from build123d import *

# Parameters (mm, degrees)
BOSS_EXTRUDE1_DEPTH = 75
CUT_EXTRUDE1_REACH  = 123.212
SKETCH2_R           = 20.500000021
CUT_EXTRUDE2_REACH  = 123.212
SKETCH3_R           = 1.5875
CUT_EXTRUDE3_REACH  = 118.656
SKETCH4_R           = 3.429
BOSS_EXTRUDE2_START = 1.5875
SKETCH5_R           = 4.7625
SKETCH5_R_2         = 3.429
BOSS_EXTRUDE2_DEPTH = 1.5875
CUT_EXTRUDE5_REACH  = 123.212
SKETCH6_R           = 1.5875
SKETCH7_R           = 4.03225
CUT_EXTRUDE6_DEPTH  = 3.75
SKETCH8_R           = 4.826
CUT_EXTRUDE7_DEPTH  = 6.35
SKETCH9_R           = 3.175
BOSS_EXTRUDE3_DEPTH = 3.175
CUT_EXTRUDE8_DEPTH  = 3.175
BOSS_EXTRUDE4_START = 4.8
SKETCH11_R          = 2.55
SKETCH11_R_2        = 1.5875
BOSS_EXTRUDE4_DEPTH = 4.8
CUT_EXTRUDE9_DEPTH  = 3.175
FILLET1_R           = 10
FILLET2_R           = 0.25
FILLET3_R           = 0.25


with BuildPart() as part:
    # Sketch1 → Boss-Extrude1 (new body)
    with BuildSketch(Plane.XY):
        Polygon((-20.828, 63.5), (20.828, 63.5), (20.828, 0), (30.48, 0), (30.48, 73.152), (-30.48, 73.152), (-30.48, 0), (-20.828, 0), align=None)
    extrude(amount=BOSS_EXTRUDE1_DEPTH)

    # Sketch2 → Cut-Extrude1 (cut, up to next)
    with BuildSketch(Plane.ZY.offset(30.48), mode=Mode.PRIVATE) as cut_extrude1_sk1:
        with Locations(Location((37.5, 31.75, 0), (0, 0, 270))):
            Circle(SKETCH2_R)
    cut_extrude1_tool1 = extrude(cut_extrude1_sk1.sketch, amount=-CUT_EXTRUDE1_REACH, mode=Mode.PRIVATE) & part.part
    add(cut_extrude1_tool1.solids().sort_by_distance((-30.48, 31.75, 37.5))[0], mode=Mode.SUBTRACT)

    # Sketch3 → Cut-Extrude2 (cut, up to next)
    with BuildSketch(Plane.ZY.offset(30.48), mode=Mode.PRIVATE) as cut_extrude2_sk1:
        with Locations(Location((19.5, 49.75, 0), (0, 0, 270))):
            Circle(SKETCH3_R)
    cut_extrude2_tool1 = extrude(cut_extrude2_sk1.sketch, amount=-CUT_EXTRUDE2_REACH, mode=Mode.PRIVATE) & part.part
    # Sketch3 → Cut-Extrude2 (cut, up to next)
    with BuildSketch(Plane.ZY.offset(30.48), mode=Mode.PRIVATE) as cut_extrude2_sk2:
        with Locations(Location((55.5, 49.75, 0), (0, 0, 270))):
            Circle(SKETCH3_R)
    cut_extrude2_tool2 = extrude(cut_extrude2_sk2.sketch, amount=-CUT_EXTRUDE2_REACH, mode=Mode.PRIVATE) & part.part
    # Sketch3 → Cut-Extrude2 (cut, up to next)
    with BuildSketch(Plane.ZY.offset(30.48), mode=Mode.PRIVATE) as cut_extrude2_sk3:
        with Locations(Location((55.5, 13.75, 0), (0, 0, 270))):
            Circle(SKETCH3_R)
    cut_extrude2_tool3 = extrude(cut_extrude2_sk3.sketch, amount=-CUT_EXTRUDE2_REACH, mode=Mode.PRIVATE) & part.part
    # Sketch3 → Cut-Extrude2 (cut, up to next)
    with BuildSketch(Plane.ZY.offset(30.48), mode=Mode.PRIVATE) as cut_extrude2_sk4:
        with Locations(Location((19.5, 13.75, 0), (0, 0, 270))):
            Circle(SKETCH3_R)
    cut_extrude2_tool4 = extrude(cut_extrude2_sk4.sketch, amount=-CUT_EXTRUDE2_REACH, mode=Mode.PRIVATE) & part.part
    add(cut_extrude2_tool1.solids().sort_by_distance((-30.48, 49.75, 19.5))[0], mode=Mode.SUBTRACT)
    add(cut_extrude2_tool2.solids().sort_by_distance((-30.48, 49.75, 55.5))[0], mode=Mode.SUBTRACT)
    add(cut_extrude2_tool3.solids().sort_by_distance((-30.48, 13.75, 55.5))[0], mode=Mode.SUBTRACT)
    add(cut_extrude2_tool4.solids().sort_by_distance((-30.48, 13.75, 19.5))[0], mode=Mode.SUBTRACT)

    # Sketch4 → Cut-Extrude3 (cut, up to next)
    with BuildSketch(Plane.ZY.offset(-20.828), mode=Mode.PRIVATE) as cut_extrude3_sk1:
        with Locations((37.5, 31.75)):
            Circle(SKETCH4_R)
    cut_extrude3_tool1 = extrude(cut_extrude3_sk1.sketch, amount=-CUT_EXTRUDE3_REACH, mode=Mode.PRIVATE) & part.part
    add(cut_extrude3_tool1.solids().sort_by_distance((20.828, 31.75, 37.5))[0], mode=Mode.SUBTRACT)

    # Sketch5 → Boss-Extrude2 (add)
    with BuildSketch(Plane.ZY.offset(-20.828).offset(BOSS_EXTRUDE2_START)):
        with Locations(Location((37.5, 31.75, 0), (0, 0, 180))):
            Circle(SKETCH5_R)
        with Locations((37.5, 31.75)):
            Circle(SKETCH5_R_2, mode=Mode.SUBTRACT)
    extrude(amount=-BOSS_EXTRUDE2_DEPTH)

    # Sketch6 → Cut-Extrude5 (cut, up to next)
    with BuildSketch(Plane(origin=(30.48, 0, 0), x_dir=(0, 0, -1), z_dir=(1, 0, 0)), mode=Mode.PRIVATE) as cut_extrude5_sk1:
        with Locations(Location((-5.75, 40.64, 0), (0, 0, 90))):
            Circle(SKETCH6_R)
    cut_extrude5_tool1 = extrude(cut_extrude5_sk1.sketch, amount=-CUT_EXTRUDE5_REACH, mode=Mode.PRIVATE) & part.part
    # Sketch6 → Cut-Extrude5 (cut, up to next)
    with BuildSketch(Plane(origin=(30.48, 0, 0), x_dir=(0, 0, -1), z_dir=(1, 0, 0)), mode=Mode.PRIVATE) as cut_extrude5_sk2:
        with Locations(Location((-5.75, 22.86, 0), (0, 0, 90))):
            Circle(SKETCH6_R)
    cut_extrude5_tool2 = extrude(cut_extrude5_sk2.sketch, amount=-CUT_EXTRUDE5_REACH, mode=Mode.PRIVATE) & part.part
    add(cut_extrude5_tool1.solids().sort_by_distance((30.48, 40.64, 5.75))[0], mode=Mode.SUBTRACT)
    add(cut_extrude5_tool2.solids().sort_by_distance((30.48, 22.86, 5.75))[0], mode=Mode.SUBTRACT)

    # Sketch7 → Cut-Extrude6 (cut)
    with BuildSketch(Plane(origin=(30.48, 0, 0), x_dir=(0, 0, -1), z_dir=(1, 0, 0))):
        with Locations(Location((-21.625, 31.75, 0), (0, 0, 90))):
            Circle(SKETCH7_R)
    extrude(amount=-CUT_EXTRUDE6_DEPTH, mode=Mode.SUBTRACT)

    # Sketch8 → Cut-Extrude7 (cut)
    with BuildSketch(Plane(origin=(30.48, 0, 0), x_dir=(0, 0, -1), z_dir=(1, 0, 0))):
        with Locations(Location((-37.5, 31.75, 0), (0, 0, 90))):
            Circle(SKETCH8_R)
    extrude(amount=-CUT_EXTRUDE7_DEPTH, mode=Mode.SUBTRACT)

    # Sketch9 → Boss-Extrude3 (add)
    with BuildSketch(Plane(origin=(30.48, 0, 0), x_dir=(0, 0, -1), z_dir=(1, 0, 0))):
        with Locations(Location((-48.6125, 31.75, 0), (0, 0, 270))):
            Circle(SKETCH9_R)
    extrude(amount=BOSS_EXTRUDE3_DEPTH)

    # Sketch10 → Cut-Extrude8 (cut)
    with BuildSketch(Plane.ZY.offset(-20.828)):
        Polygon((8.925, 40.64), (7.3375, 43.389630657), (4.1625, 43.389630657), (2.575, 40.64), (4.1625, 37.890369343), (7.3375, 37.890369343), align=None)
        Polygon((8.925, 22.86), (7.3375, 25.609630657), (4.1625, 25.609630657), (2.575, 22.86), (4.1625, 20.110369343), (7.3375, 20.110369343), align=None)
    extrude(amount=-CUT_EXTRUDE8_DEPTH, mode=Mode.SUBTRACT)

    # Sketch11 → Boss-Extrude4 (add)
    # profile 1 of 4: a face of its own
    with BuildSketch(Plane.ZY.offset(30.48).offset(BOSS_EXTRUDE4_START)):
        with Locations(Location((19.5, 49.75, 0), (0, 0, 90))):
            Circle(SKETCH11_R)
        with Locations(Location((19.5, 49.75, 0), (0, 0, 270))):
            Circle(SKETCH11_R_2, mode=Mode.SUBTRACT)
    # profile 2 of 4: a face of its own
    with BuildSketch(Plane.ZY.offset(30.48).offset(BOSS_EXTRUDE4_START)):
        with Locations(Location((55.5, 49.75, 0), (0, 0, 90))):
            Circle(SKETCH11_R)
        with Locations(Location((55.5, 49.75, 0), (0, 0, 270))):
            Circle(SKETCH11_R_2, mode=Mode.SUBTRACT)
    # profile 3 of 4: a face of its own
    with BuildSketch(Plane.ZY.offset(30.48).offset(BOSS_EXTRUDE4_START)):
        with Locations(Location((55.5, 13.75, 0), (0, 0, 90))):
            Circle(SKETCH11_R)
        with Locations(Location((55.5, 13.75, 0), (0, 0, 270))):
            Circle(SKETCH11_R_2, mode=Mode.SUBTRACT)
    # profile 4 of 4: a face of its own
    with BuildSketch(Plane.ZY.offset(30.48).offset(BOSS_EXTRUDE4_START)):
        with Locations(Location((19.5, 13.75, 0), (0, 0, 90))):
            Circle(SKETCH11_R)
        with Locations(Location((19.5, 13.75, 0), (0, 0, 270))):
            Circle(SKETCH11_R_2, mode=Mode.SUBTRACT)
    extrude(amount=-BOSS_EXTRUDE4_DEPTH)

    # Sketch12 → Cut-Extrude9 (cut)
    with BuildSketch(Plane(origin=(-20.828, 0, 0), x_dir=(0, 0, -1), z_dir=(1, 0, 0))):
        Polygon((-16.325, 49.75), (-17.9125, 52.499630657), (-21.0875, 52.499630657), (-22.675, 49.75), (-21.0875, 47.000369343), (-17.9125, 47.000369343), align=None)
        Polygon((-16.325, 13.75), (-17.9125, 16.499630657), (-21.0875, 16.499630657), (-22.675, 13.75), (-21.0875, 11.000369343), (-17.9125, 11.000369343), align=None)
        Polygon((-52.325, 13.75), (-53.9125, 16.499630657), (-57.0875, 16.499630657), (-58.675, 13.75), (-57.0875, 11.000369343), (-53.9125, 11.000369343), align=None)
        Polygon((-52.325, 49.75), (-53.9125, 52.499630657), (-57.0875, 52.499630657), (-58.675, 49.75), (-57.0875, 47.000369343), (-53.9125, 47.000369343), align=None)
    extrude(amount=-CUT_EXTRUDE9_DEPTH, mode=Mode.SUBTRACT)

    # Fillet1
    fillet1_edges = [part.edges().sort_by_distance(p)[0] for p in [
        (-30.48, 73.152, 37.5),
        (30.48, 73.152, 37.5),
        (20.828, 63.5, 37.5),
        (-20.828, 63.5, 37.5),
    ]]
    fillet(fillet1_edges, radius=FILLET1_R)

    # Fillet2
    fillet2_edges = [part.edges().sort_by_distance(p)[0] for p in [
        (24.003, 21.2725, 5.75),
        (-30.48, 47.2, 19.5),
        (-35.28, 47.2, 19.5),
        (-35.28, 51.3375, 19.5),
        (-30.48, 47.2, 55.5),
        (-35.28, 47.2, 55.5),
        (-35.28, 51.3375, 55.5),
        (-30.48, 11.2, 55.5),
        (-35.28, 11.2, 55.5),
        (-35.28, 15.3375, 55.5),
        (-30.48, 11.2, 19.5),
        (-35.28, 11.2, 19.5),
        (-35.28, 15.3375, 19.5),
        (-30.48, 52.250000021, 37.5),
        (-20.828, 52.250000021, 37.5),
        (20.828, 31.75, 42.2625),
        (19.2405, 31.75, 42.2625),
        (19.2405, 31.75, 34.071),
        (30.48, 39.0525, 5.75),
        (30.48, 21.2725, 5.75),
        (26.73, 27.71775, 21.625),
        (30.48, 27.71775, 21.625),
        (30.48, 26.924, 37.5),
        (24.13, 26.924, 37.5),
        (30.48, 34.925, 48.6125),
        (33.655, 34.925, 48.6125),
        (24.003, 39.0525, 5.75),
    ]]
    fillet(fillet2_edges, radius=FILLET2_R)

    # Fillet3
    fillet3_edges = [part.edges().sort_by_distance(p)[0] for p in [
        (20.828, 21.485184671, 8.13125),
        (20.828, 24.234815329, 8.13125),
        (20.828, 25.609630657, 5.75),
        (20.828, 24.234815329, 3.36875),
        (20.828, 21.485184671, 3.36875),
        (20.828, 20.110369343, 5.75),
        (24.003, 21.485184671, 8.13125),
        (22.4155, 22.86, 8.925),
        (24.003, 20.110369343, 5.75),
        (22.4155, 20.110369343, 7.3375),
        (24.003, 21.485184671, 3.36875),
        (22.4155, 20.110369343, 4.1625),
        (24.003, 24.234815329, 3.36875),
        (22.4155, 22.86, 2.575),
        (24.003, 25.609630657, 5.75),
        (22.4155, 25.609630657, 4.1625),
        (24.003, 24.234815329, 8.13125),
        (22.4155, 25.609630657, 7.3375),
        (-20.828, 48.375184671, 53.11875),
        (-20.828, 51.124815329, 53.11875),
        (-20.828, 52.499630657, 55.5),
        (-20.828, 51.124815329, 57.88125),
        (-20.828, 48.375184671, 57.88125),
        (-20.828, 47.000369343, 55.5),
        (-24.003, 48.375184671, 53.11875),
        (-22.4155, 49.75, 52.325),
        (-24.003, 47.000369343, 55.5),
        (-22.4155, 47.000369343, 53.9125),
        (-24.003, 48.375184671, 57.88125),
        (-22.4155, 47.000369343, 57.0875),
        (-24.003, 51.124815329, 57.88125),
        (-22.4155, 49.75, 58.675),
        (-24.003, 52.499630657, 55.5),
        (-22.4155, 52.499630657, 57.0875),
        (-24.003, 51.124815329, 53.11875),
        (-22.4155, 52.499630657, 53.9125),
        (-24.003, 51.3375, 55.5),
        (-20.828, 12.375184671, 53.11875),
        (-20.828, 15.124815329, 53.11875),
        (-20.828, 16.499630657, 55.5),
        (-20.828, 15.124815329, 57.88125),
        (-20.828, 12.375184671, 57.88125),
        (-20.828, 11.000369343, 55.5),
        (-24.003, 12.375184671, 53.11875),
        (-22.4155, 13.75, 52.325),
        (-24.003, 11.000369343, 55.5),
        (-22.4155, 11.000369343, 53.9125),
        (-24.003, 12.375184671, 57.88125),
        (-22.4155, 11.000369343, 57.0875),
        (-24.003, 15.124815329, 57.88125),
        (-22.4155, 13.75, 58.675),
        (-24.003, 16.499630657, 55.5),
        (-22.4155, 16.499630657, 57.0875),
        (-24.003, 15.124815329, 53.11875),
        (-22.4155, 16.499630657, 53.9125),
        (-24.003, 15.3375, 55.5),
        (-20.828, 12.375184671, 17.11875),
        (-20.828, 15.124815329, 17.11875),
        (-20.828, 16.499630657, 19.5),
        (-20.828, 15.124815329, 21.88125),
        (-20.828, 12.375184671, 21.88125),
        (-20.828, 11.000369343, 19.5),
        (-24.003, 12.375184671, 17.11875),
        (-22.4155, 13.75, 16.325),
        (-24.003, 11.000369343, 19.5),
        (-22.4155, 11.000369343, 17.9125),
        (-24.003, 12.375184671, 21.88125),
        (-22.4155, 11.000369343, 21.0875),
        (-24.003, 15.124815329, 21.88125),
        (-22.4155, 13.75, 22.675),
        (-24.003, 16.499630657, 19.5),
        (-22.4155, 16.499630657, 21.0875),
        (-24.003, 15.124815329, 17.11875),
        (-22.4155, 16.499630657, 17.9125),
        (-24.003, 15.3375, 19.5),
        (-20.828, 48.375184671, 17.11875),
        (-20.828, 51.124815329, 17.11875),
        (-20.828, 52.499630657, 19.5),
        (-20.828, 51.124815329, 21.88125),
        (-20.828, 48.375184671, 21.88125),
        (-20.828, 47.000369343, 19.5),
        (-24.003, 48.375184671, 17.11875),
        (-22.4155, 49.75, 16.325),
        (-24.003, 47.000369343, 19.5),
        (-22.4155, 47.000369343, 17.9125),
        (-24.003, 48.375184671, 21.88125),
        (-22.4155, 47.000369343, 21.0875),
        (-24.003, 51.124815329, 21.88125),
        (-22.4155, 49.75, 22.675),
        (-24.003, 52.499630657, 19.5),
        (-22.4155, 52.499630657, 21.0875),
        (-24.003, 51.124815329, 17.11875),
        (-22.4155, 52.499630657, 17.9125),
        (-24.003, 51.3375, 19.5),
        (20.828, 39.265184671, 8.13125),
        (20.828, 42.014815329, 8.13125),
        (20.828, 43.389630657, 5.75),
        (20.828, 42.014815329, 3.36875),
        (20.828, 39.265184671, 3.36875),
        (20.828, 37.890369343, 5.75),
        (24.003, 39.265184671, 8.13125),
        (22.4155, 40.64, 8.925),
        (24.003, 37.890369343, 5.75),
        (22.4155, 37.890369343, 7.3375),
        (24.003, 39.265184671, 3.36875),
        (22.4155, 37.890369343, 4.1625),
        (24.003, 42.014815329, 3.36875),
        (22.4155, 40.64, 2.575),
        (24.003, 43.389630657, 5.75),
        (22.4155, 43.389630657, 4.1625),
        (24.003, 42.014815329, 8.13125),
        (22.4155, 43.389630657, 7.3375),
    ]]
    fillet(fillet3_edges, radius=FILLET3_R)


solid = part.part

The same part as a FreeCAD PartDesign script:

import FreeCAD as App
import Part
import Sketcher

V = App.Vector
Q = App.Units.Quantity


def edges_at(feature, points):
    """Names of the edges that pass closest to the given points."""
    edges = feature.Shape.Edges
    near = lambda p: min(range(len(edges)), key=lambda i: edges[i].distToShape(Part.Vertex(*p))[0])
    return sorted({f"Edge{near(p) + 1}" for p in points})

doc = App.newDocument("Part")
params = doc.addObject("Spreadsheet::Sheet", "Params")
for row, (alias, value) in enumerate([
    ("sketch1_width", "2.4 in"),
    ("sketch1_height", "2.5 in"),
    ("sketch1_width2", "1.64 in"),
    ("sketch1_height2", "2.88 in"),
    ("pad1_length", "75 mm"),
    ("sketch3_diameter", "0.125 in"),
    ("sketch4_diameter", "0.125 in"),
    ("sketch5_diameter", "0.125 in"),
    ("sketch6_diameter", "0.125 in"),
    ("sketch7_diameter", "0.27 in"),
    ("sketch8_diameter", "0.27 in"),
    ("sketch8_diameter2", "0.375 in"),
    ("pad2_length", "0.0625 in"),
    ("sketch9_diameter", "0.125 in"),
    ("sketch10_diameter", "0.125 in"),
    ("pocket9_length", "3.75 mm"),
    ("sketch12_diameter", "0.38 in"),
    ("pocket10_length", "0.25 in"),
    ("sketch13_diameter", "0.25 in"),
    ("pad3_length", "0.125 in"),
    ("sketch14_height", "0.125 in"),
    ("pocket11_length", "0.125 in"),
    ("sketch15_diameter", "0.125 in"),
    ("pad4_length", "4.8 mm"),
    ("sketch16_height", "0.125 in"),
    ("pocket12_length", "0.125 in"),
    ("fillet_radius", "10 mm"),
    ("fillet2_radius", "0.25 mm"),
    ("fillet3_radius", "0.25 mm"),
], start=1):
    params.set(f"A{row}", alias)
    params.set(f"B{row}", "=" + value)
    params.setAlias(f"B{row}", alias)

body = doc.addObject("PartDesign::Body", "Body")

# Sketch on XY plane
sketch1 = body.newObject("Sketcher::SketchObject", "Sketch")
sketch1.AttachmentSupport = (doc.getObject("XY_Plane"), [""])
sketch1.MapMode = "FlatFace"
sketch1.addGeometry([
    Part.LineSegment(V(-21, 64, 0), V(21, 64, 0)),  # 0
    Part.LineSegment(V(21, 64, 0), V(21, 0, 0)),  # 1
    Part.LineSegment(V(21, 0, 0), V(30, 0, 0)),  # 2
    Part.LineSegment(V(30, 0, 0), V(30, 73, 0)),  # 3
    Part.LineSegment(V(30, 73, 0), V(-30, 73, 0)),  # 4
    Part.LineSegment(V(-30, 73, 0), V(-30, 0, 0)),  # 5
    Part.LineSegment(V(-30, 0, 0), V(-21, 0, 0)),  # 6
    Part.LineSegment(V(-21, 0, 0), V(-21, 64, 0)),  # 7
], False)
sketch1.addConstraint([
    Sketcher.Constraint("Coincident", 0, 2, 1, 1),
    Sketcher.Constraint("Coincident", 1, 2, 2, 1),
    Sketcher.Constraint("Coincident", 2, 2, 3, 1),
    Sketcher.Constraint("Coincident", 3, 2, 4, 1),
    Sketcher.Constraint("Coincident", 4, 2, 5, 1),
    Sketcher.Constraint("Coincident", 5, 2, 6, 1),
    Sketcher.Constraint("Coincident", 6, 2, 7, 1),
    Sketcher.Constraint("Coincident", 7, 2, 0, 1),
    Sketcher.Constraint("Horizontal", 0),
    Sketcher.Constraint("Vertical", 1),
    Sketcher.Constraint("Horizontal", 2),
    Sketcher.Constraint("Vertical", 3),
    Sketcher.Constraint("Horizontal", 4),
    Sketcher.Constraint("Vertical", 5),
    Sketcher.Constraint("Horizontal", 6),
    Sketcher.Constraint("Vertical", 7),
    Sketcher.Constraint("Symmetric", 2, 2, 5, 2, -1, 1),
    Sketcher.Constraint("Symmetric", 1, 2, 6, 2, -2),
    Sketcher.Constraint("DistanceX", 4, 2, 4, 1, Q("2.4 in")),
    Sketcher.Constraint("DistanceY", 1, 2, 1, 1, Q("2.5 in")),
    Sketcher.Constraint("DistanceX", 0, 1, 0, 2, Q("1.64 in")),
    Sketcher.Constraint("DistanceY", 3, 1, 3, 2, Q("2.88 in")),
])
sketch1.setExpression("Constraints[18]", "Params.sketch1_width")
sketch1.setExpression("Constraints[19]", "Params.sketch1_height")
sketch1.setExpression("Constraints[20]", "Params.sketch1_width2")
sketch1.setExpression("Constraints[21]", "Params.sketch1_height2")
pad1 = body.newObject("PartDesign::Pad", "Pad")
pad1.Profile = sketch1
pad1.setExpression("Length", "Params.pad1_length")

# Sketch on YZ plane
sketch2 = body.newObject("Sketcher::SketchObject", "Sketch001")
sketch2.AttachmentSupport = (doc.getObject("YZ_Plane"), [""])
sketch2.MapMode = "FlatFace"
sketch2.AttachmentOffset = App.Placement(V(0, 0, -1.2 * 25.4), App.Rotation())
sketch2.addGeometry(Part.Circle(V(32, 38, 0), V(0, 0, 1), 21), False)
sketch2.addConstraint([
    Sketcher.Constraint("Diameter", 0, 41.0),
    Sketcher.Constraint("DistanceX", -1, 1, 0, 3, Q("1.25 in")),
    Sketcher.Constraint("DistanceY", -1, 1, 0, 3, 37.5),
])
pocket1 = body.newObject("PartDesign::Pocket", "Pocket")
pocket1.Profile = sketch2
pocket1.Type = "UpToFirst"
pocket1.Reversed = True

# Sketch on YZ plane
sketch3 = body.newObject("Sketcher::SketchObject", "Sketch002")
sketch3.AttachmentSupport = (doc.getObject("YZ_Plane"), [""])
sketch3.MapMode = "FlatFace"
sketch3.AttachmentOffset = App.Placement(V(0, 0, -1.2 * 25.4), App.Rotation())
sketch3.addGeometry(Part.Circle(V(49.8, 19.5, 0), V(0, 0, 1), 1.6), False)
sketch3.addConstraint([
    Sketcher.Constraint("Diameter", 0, Q("0.125 in")),
    Sketcher.Constraint("DistanceX", -1, 1, 0, 3, 49.75),
    Sketcher.Constraint("DistanceY", -1, 1, 0, 3, 19.5),
])
sketch3.setExpression("Constraints[0]", "Params.sketch3_diameter")
pocket2 = body.newObject("PartDesign::Pocket", "Pocket001")
pocket2.Profile = sketch3
pocket2.Type = "UpToFirst"
pocket2.Reversed = True

# Sketch on YZ plane
sketch4 = body.newObject("Sketcher::SketchObject", "Sketch003")
sketch4.AttachmentSupport = (doc.getObject("YZ_Plane"), [""])
sketch4.MapMode = "FlatFace"
sketch4.AttachmentOffset = App.Placement(V(0, 0, -1.2 * 25.4), App.Rotation())
sketch4.addGeometry(Part.Circle(V(49.8, 55.5, 0), V(0, 0, 1), 1.6), False)
sketch4.addConstraint([
    Sketcher.Constraint("Diameter", 0, Q("0.125 in")),
    Sketcher.Constraint("DistanceX", -1, 1, 0, 3, 49.75),
    Sketcher.Constraint("DistanceY", -1, 1, 0, 3, 55.5),
])
sketch4.setExpression("Constraints[0]", "Params.sketch4_diameter")
pocket3 = body.newObject("PartDesign::Pocket", "Pocket002")
pocket3.Profile = sketch4
pocket3.Type = "UpToFirst"
pocket3.Reversed = True

# Sketch on YZ plane
sketch5 = body.newObject("Sketcher::SketchObject", "Sketch004")
sketch5.AttachmentSupport = (doc.getObject("YZ_Plane"), [""])
sketch5.MapMode = "FlatFace"
sketch5.AttachmentOffset = App.Placement(V(0, 0, -1.2 * 25.4), App.Rotation())
sketch5.addGeometry(Part.Circle(V(13.8, 55.5, 0), V(0, 0, 1), 1.6), False)
sketch5.addConstraint([
    Sketcher.Constraint("Diameter", 0, Q("0.125 in")),
    Sketcher.Constraint("DistanceX", -1, 1, 0, 3, 13.75),
    Sketcher.Constraint("DistanceY", -1, 1, 0, 3, 55.5),
])
sketch5.setExpression("Constraints[0]", "Params.sketch5_diameter")
pocket4 = body.newObject("PartDesign::Pocket", "Pocket003")
pocket4.Profile = sketch5
pocket4.Type = "UpToFirst"
pocket4.Reversed = True

# Sketch on YZ plane
sketch6 = body.newObject("Sketcher::SketchObject", "Sketch005")
sketch6.AttachmentSupport = (doc.getObject("YZ_Plane"), [""])
sketch6.MapMode = "FlatFace"
sketch6.AttachmentOffset = App.Placement(V(0, 0, -1.2 * 25.4), App.Rotation())
sketch6.addGeometry(Part.Circle(V(13.8, 19.5, 0), V(0, 0, 1), 1.6), False)
sketch6.addConstraint([
    Sketcher.Constraint("Diameter", 0, Q("0.125 in")),
    Sketcher.Constraint("DistanceX", -1, 1, 0, 3, 13.75),
    Sketcher.Constraint("DistanceY", -1, 1, 0, 3, 19.5),
])
sketch6.setExpression("Constraints[0]", "Params.sketch6_diameter")
pocket5 = body.newObject("PartDesign::Pocket", "Pocket004")
pocket5.Profile = sketch6
pocket5.Type = "UpToFirst"
pocket5.Reversed = True

# Sketch on YZ plane
sketch7 = body.newObject("Sketcher::SketchObject", "Sketch006")
sketch7.AttachmentSupport = (doc.getObject("YZ_Plane"), [""])
sketch7.MapMode = "FlatFace"
sketch7.AttachmentOffset = App.Placement(V(0, 0, 0.82 * 25.4), App.Rotation())
sketch7.addGeometry(Part.Circle(V(31.8, 37.5, 0), V(0, 0, 1), 3.4), False)
sketch7.addConstraint([
    Sketcher.Constraint("Diameter", 0, Q("0.27 in")),
    Sketcher.Constraint("DistanceX", -1, 1, 0, 3, Q("1.25 in")),
    Sketcher.Constraint("DistanceY", -1, 1, 0, 3, 37.5),
])
sketch7.setExpression("Constraints[0]", "Params.sketch7_diameter")
pocket6 = body.newObject("PartDesign::Pocket", "Pocket005")
pocket6.Profile = sketch7
pocket6.Type = "UpToFirst"
pocket6.Reversed = True

# Sketch on YZ plane
sketch8 = body.newObject("Sketcher::SketchObject", "Sketch007")
sketch8.AttachmentSupport = (doc.getObject("YZ_Plane"), [""])
sketch8.MapMode = "FlatFace"
sketch8.AttachmentOffset = App.Placement(V(0, 0, 0.7575 * 25.4), App.Rotation())
sketch8.addGeometry([
    Part.Circle(V(31.8, 37.5, 0), V(0, 0, 1), 4.8),
    Part.Circle(V(31.8, 37.5, 0), V(0, 0, 1), 3.4),
], False)
sketch8.addConstraint([
    Sketcher.Constraint("Coincident", 1, 3, 0, 3),
    Sketcher.Constraint("Diameter", 1, Q("0.27 in")),
    Sketcher.Constraint("Diameter", 0, Q("0.375 in")),
    Sketcher.Constraint("DistanceX", -1, 1, 0, 3, Q("1.25 in")),
    Sketcher.Constraint("DistanceY", -1, 1, 0, 3, 37.5),
])
sketch8.setExpression("Constraints[1]", "Params.sketch8_diameter")
sketch8.setExpression("Constraints[2]", "Params.sketch8_diameter2")
pad2 = body.newObject("PartDesign::Pad", "Pad001")
pad2.Profile = sketch8
pad2.setExpression("Length", "Params.pad2_length")

# Sketch on YZ plane
sketch9 = body.newObject("Sketcher::SketchObject", "Sketch008")
sketch9.AttachmentSupport = (doc.getObject("YZ_Plane"), [""])
sketch9.MapMode = "FlatFace"
sketch9.AttachmentOffset = App.Placement(V(0, 0, 1.2 * 25.4), App.Rotation())
sketch9.addGeometry(Part.Circle(V(40.6, 5.8, 0), V(0, 0, 1), 1.6), False)
sketch9.addConstraint([
    Sketcher.Constraint("Diameter", 0, Q("0.125 in")),
    Sketcher.Constraint("DistanceX", -1, 1, 0, 3, Q("1.6 in")),
    Sketcher.Constraint("DistanceY", -1, 1, 0, 3, 5.75),
])
sketch9.setExpression("Constraints[0]", "Params.sketch9_diameter")
pocket7 = body.newObject("PartDesign::Pocket", "Pocket006")
pocket7.Profile = sketch9
pocket7.Type = "UpToFirst"

# Sketch on YZ plane
sketch10 = body.newObject("Sketcher::SketchObject", "Sketch009")
sketch10.AttachmentSupport = (doc.getObject("YZ_Plane"), [""])
sketch10.MapMode = "FlatFace"
sketch10.AttachmentOffset = App.Placement(V(0, 0, 1.2 * 25.4), App.Rotation())
sketch10.addGeometry(Part.Circle(V(22.9, 5.8, 0), V(0, 0, 1), 1.6), False)
sketch10.addConstraint([
    Sketcher.Constraint("Diameter", 0, Q("0.125 in")),
    Sketcher.Constraint("DistanceX", -1, 1, 0, 3, Q("0.9 in")),
    Sketcher.Constraint("DistanceY", -1, 1, 0, 3, 5.75),
])
sketch10.setExpression("Constraints[0]", "Params.sketch10_diameter")
pocket8 = body.newObject("PartDesign::Pocket", "Pocket007")
pocket8.Profile = sketch10
pocket8.Type = "UpToFirst"

# Sketch on YZ plane
sketch11 = body.newObject("Sketcher::SketchObject", "Sketch010")
sketch11.AttachmentSupport = (doc.getObject("YZ_Plane"), [""])
sketch11.MapMode = "FlatFace"
sketch11.AttachmentOffset = App.Placement(V(0, 0, 1.2 * 25.4), App.Rotation())
sketch11.addGeometry(Part.Circle(V(31.8, 21.6, 0), V(0, 0, 1), 4), False)
sketch11.addConstraint([
    Sketcher.Constraint("Diameter", 0, Q("0.3175 in")),
    Sketcher.Constraint("DistanceX", -1, 1, 0, 3, Q("1.25 in")),
    Sketcher.Constraint("DistanceY", -1, 1, 0, 3, 21.625),
])
pocket9 = body.newObject("PartDesign::Pocket", "Pocket008")
pocket9.Profile = sketch11
pocket9.setExpression("Length", "Params.pocket9_length")

# Sketch on YZ plane
sketch12 = body.newObject("Sketcher::SketchObject", "Sketch011")
sketch12.AttachmentSupport = (doc.getObject("YZ_Plane"), [""])
sketch12.MapMode = "FlatFace"
sketch12.AttachmentOffset = App.Placement(V(0, 0, 1.2 * 25.4), App.Rotation())
sketch12.addGeometry(Part.Circle(V(31.8, 37.5, 0), V(0, 0, 1), 4.8), False)
sketch12.addConstraint([
    Sketcher.Constraint("Diameter", 0, Q("0.38 in")),
    Sketcher.Constraint("DistanceX", -1, 1, 0, 3, Q("1.25 in")),
    Sketcher.Constraint("DistanceY", -1, 1, 0, 3, 37.5),
])
sketch12.setExpression("Constraints[0]", "Params.sketch12_diameter")
pocket10 = body.newObject("PartDesign::Pocket", "Pocket009")
pocket10.Profile = sketch12
pocket10.setExpression("Length", "Params.pocket10_length")

# Sketch on YZ plane
sketch13 = body.newObject("Sketcher::SketchObject", "Sketch012")
sketch13.AttachmentSupport = (doc.getObject("YZ_Plane"), [""])
sketch13.MapMode = "FlatFace"
sketch13.AttachmentOffset = App.Placement(V(0, 0, 1.2 * 25.4), App.Rotation())
sketch13.addGeometry(Part.Circle(V(31.8, 48.6, 0), V(0, 0, 1), 3.2), False)
sketch13.addConstraint([
    Sketcher.Constraint("Diameter", 0, Q("0.25 in")),
    Sketcher.Constraint("DistanceX", -1, 1, 0, 3, Q("1.25 in")),
    Sketcher.Constraint("DistanceY", -1, 1, 0, 3, 48.6125),
])
sketch13.setExpression("Constraints[0]", "Params.sketch13_diameter")
pad3 = body.newObject("PartDesign::Pad", "Pad002")
pad3.Profile = sketch13
pad3.setExpression("Length", "Params.pad3_length")

# Sketch on YZ plane
sketch14 = body.newObject("Sketcher::SketchObject", "Sketch013")
sketch14.AttachmentSupport = (doc.getObject("YZ_Plane"), [""])
sketch14.MapMode = "FlatFace"
sketch14.AttachmentOffset = App.Placement(V(0, 0, 0.82 * 25.4), App.Rotation())
sketch14.addGeometry([
    Part.LineSegment(V(40.6, 8.9, 0), V(43.4, 7.3, 0)),  # 0
    Part.LineSegment(V(43.4, 7.3, 0), V(43.4, 4.2, 0)),  # 1
    Part.LineSegment(V(43.4, 4.2, 0), V(40.6, 2.6, 0)),  # 2
    Part.LineSegment(V(40.6, 2.6, 0), V(37.9, 4.2, 0)),  # 3
    Part.LineSegment(V(37.9, 4.2, 0), V(37.9, 7.3, 0)),  # 4
    Part.LineSegment(V(37.9, 7.3, 0), V(40.6, 8.9, 0)),  # 5
    Part.LineSegment(V(22.9, 8.9, 0), V(25.6, 7.3, 0)),  # 6
    Part.LineSegment(V(25.6, 7.3, 0), V(25.6, 4.2, 0)),  # 7
    Part.LineSegment(V(25.6, 4.2, 0), V(22.9, 2.6, 0)),  # 8
    Part.LineSegment(V(22.9, 2.6, 0), V(20.1, 4.2, 0)),  # 9
    Part.LineSegment(V(20.1, 4.2, 0), V(20.1, 7.3, 0)),  # 10
    Part.LineSegment(V(20.1, 7.3, 0), V(22.9, 8.9, 0)),  # 11
], False)
sketch14.addConstraint([
    Sketcher.Constraint("Coincident", 0, 2, 1, 1),
    Sketcher.Constraint("Coincident", 1, 2, 2, 1),
    Sketcher.Constraint("Coincident", 2, 2, 3, 1),
    Sketcher.Constraint("Coincident", 3, 2, 4, 1),
    Sketcher.Constraint("Coincident", 4, 2, 5, 1),
    Sketcher.Constraint("Coincident", 5, 2, 0, 1),
    Sketcher.Constraint("Coincident", 6, 2, 7, 1),
    Sketcher.Constraint("Coincident", 7, 2, 8, 1),
    Sketcher.Constraint("Coincident", 8, 2, 9, 1),
    Sketcher.Constraint("Coincident", 9, 2, 10, 1),
    Sketcher.Constraint("Coincident", 10, 2, 11, 1),
    Sketcher.Constraint("Coincident", 11, 2, 6, 1),
    Sketcher.Constraint("Vertical", 1),
    Sketcher.Constraint("Vertical", 4),
    Sketcher.Constraint("Vertical", 7),
    Sketcher.Constraint("Vertical", 10),
    Sketcher.Constraint("Parallel", 0, 3),
    Sketcher.Constraint("Parallel", 2, 5),
    Sketcher.Constraint("Parallel", 3, 6),
    Sketcher.Constraint("Parallel", 5, 8),
    Sketcher.Constraint("Parallel", 6, 9),
    Sketcher.Constraint("Parallel", 8, 11),
    Sketcher.Constraint("Horizontal", 1, 2, 3, 2),
    Sketcher.Constraint("Horizontal", 0, 2, 4, 2),
    Sketcher.Constraint("Horizontal", 4, 2, 6, 2),
    Sketcher.Constraint("Horizontal", 3, 2, 7, 2),
    Sketcher.Constraint("Horizontal", 2, 2, 8, 2),
    Sketcher.Constraint("Horizontal", 7, 2, 9, 2),
    Sketcher.Constraint("Horizontal", 6, 2, 10, 2),
    Sketcher.Constraint("Vertical", 2, 2, 5, 2),
    Sketcher.Constraint("Angle", 0, Q("-30 deg")),
    Sketcher.Constraint("DistanceX", -1, 1, 2, 2, Q("1.6 in")),
    Sketcher.Constraint("DistanceX", -1, 1, 8, 2, Q("0.9 in")),
    Sketcher.Constraint("DistanceY", 1, 2, 1, 1, Q("0.125 in")),
    Sketcher.Constraint("DistanceY", 2, 2, 5, 2, Q("0.25 in")),
    Sketcher.Constraint("DistanceY", -1, 1, 0, 2, 7.3375),
])
sketch14.setExpression("Constraints[33]", "Params.sketch14_height")
pocket11 = body.newObject("PartDesign::Pocket", "Pocket010")
pocket11.Profile = sketch14
pocket11.setExpression("Length", "Params.pocket11_length")
pocket11.Reversed = True

# Sketch on YZ plane
sketch15 = body.newObject("Sketcher::SketchObject", "Sketch014")
sketch15.AttachmentSupport = (doc.getObject("YZ_Plane"), [""])
sketch15.MapMode = "FlatFace"
sketch15.AttachmentOffset = App.Placement(V(0, 0, -35.28), App.Rotation())
sketch15.addGeometry([
    Part.Circle(V(49.8, 19.5, 0), V(0, 0, 1), 2.5),  # 0
    Part.Circle(V(49.8, 19.5, 0), V(0, 0, 1), 1.6),  # 1
    Part.Circle(V(49.8, 55.5, 0), V(0, 0, 1), 2.5),  # 2
    Part.Circle(V(49.8, 55.5, 0), V(0, 0, 1), 1.6),  # 3
    Part.Circle(V(13.8, 55.5, 0), V(0, 0, 1), 2.5),  # 4
    Part.Circle(V(13.8, 55.5, 0), V(0, 0, 1), 1.6),  # 5
    Part.Circle(V(13.8, 19.5, 0), V(0, 0, 1), 2.5),  # 6
    Part.Circle(V(13.8, 19.5, 0), V(0, 0, 1), 1.6),  # 7
], False)
sketch15.addConstraint([
    Sketcher.Constraint("Coincident", 1, 3, 0, 3),
    Sketcher.Constraint("Coincident", 3, 3, 2, 3),
    Sketcher.Constraint("Coincident", 5, 3, 4, 3),
    Sketcher.Constraint("Coincident", 7, 3, 6, 3),
    Sketcher.Constraint("Equal", 0, 2),
    Sketcher.Constraint("Equal", 1, 3),
    Sketcher.Constraint("Equal", 2, 4),
    Sketcher.Constraint("Equal", 3, 5),
    Sketcher.Constraint("Equal", 4, 6),
    Sketcher.Constraint("Equal", 5, 7),
    Sketcher.Constraint("Horizontal", 3, 3, 4, 3),
    Sketcher.Constraint("Horizontal", 1, 3, 6, 3),
    Sketcher.Constraint("Vertical", 1, 3, 2, 3),
    Sketcher.Constraint("Vertical", 5, 3, 6, 3),
    Sketcher.Constraint("Diameter", 1, Q("0.125 in")),
    Sketcher.Constraint("Diameter", 0, 5.1),
    Sketcher.Constraint("DistanceX", -1, 1, 0, 3, 49.75),
    Sketcher.Constraint("DistanceY", -1, 1, 0, 3, 19.5),
    Sketcher.Constraint("DistanceY", -1, 1, 2, 3, 55.5),
    Sketcher.Constraint("DistanceX", -1, 1, 4, 3, 13.75),
])
sketch15.setExpression("Constraints[14]", "Params.sketch15_diameter")
pad4 = body.newObject("PartDesign::Pad", "Pad003")
pad4.Profile = sketch15
pad4.setExpression("Length", "Params.pad4_length")

# Sketch on YZ plane
sketch16 = body.newObject("Sketcher::SketchObject", "Sketch015")
sketch16.AttachmentSupport = (doc.getObject("YZ_Plane"), [""])
sketch16.MapMode = "FlatFace"
sketch16.AttachmentOffset = App.Placement(V(0, 0, -0.82 * 25.4), App.Rotation())
sketch16.addGeometry([
    Part.LineSegment(V(49.8, 16.3, 0), V(52.5, 17.9, 0)),  # 0
    Part.LineSegment(V(52.5, 17.9, 0), V(52.5, 21.1, 0)),  # 1
    Part.LineSegment(V(52.5, 21.1, 0), V(49.8, 22.7, 0)),  # 2
    Part.LineSegment(V(49.8, 22.7, 0), V(47, 21.1, 0)),  # 3
    Part.LineSegment(V(47, 21.1, 0), V(47, 17.9, 0)),  # 4
    Part.LineSegment(V(47, 17.9, 0), V(49.8, 16.3, 0)),  # 5
    Part.LineSegment(V(13.8, 16.3, 0), V(16.5, 17.9, 0)),  # 6
    Part.LineSegment(V(16.5, 17.9, 0), V(16.5, 21.1, 0)),  # 7
    Part.LineSegment(V(16.5, 21.1, 0), V(13.8, 22.7, 0)),  # 8
    Part.LineSegment(V(13.8, 22.7, 0), V(11, 21.1, 0)),  # 9
    Part.LineSegment(V(11, 21.1, 0), V(11, 17.9, 0)),  # 10
    Part.LineSegment(V(11, 17.9, 0), V(13.8, 16.3, 0)),  # 11
    Part.LineSegment(V(13.8, 52.3, 0), V(16.5, 53.9, 0)),  # 12
    Part.LineSegment(V(16.5, 53.9, 0), V(16.5, 57.1, 0)),  # 13
    Part.LineSegment(V(16.5, 57.1, 0), V(13.8, 58.7, 0)),  # 14
    Part.LineSegment(V(13.8, 58.7, 0), V(11, 57.1, 0)),  # 15
    Part.LineSegment(V(11, 57.1, 0), V(11, 53.9, 0)),  # 16
    Part.LineSegment(V(11, 53.9, 0), V(13.8, 52.3, 0)),  # 17
    Part.LineSegment(V(49.8, 52.3, 0), V(52.5, 53.9, 0)),  # 18
    Part.LineSegment(V(52.5, 53.9, 0), V(52.5, 57.1, 0)),  # 19
    Part.LineSegment(V(52.5, 57.1, 0), V(49.8, 58.7, 0)),  # 20
    Part.LineSegment(V(49.8, 58.7, 0), V(47, 57.1, 0)),  # 21
    Part.LineSegment(V(47, 57.1, 0), V(47, 53.9, 0)),  # 22
    Part.LineSegment(V(47, 53.9, 0), V(49.8, 52.3, 0)),  # 23
], False)
sketch16.addConstraint([
    Sketcher.Constraint("Coincident", 0, 2, 1, 1),
    Sketcher.Constraint("Coincident", 1, 2, 2, 1),
    Sketcher.Constraint("Coincident", 2, 2, 3, 1),
    Sketcher.Constraint("Coincident", 3, 2, 4, 1),
    Sketcher.Constraint("Coincident", 4, 2, 5, 1),
    Sketcher.Constraint("Coincident", 5, 2, 0, 1),
    Sketcher.Constraint("Coincident", 6, 2, 7, 1),
    Sketcher.Constraint("Coincident", 7, 2, 8, 1),
    Sketcher.Constraint("Coincident", 8, 2, 9, 1),
    Sketcher.Constraint("Coincident", 9, 2, 10, 1),
    Sketcher.Constraint("Coincident", 10, 2, 11, 1),
    Sketcher.Constraint("Coincident", 11, 2, 6, 1),
    Sketcher.Constraint("Coincident", 12, 2, 13, 1),
    Sketcher.Constraint("Coincident", 13, 2, 14, 1),
    Sketcher.Constraint("Coincident", 14, 2, 15, 1),
    Sketcher.Constraint("Coincident", 15, 2, 16, 1),
    Sketcher.Constraint("Coincident", 16, 2, 17, 1),
    Sketcher.Constraint("Coincident", 17, 2, 12, 1),
    Sketcher.Constraint("Coincident", 18, 2, 19, 1),
    Sketcher.Constraint("Coincident", 19, 2, 20, 1),
    Sketcher.Constraint("Coincident", 20, 2, 21, 1),
    Sketcher.Constraint("Coincident", 21, 2, 22, 1),
    Sketcher.Constraint("Coincident", 22, 2, 23, 1),
    Sketcher.Constraint("Coincident", 23, 2, 18, 1),
    Sketcher.Constraint("Vertical", 1),
    Sketcher.Constraint("Vertical", 4),
    Sketcher.Constraint("Vertical", 7),
    Sketcher.Constraint("Vertical", 10),
    Sketcher.Constraint("Vertical", 13),
    Sketcher.Constraint("Vertical", 16),
    Sketcher.Constraint("Vertical", 19),
    Sketcher.Constraint("Vertical", 22),
    Sketcher.Constraint("Parallel", 0, 3),
    Sketcher.Constraint("Parallel", 2, 5),
    Sketcher.Constraint("Parallel", 3, 6),
    Sketcher.Constraint("Parallel", 5, 8),
    Sketcher.Constraint("Parallel", 6, 9),
    Sketcher.Constraint("Parallel", 8, 11),
    Sketcher.Constraint("Parallel", 9, 12),
    Sketcher.Constraint("Parallel", 11, 14),
    Sketcher.Constraint("Parallel", 12, 15),
    Sketcher.Constraint("Parallel", 14, 17),
    Sketcher.Constraint("Parallel", 15, 18),
    Sketcher.Constraint("Parallel", 17, 20),
    Sketcher.Constraint("Parallel", 18, 21),
    Sketcher.Constraint("Parallel", 20, 23),
    Sketcher.Constraint("Horizontal", 1, 2, 3, 2),
    Sketcher.Constraint("Horizontal", 0, 2, 4, 2),
    Sketcher.Constraint("Horizontal", 4, 2, 6, 2),
    Sketcher.Constraint("Horizontal", 3, 2, 7, 2),
    Sketcher.Constraint("Horizontal", 2, 2, 8, 2),
    Sketcher.Constraint("Horizontal", 7, 2, 9, 2),
    Sketcher.Constraint("Horizontal", 6, 2, 10, 2),
    Sketcher.Constraint("Horizontal", 13, 2, 15, 2),
    Sketcher.Constraint("Horizontal", 12, 2, 16, 2),
    Sketcher.Constraint("Horizontal", 16, 2, 18, 2),
    Sketcher.Constraint("Horizontal", 15, 2, 19, 2),
    Sketcher.Constraint("Horizontal", 14, 2, 20, 2),
    Sketcher.Constraint("Horizontal", 19, 2, 21, 2),
    Sketcher.Constraint("Horizontal", 18, 2, 22, 2),
    Sketcher.Constraint("Vertical", 2, 2, 5, 2),
    Sketcher.Constraint("Vertical", 7, 2, 12, 2),
    Sketcher.Constraint("Vertical", 11, 2, 14, 2),
    Sketcher.Constraint("Vertical", 1, 2, 18, 2),
    Sketcher.Constraint("Equal", 10, 13),
    Sketcher.Constraint("Angle", 0, Q("30 deg")),
    Sketcher.Constraint("DistanceY", 1, 1, 1, 2, Q("0.125 in")),
    Sketcher.Constraint("DistanceY", 5, 2, 2, 2, Q("0.25 in")),
    Sketcher.Constraint("DistanceY", -1, 1, 0, 2, 17.9125),
    Sketcher.Constraint("DistanceX", -1, 1, 2, 2, 49.75),
    Sketcher.Constraint("DistanceX", -1, 1, 8, 2, 13.75),
    Sketcher.Constraint("DistanceY", -1, 1, 12, 2, 53.9125),
])
sketch16.setExpression("Constraints[66]", "Params.sketch16_height")
pocket12 = body.newObject("PartDesign::Pocket", "Pocket011")
pocket12.Profile = sketch16
pocket12.setExpression("Length", "Params.pocket12_length")
doc.recompute()

fillet = body.newObject("PartDesign::Fillet", "Fillet")
fillet.Base = (pocket12, edges_at(pocket12, [
    (-30.48, 73.152, 37.5),
    (30.48, 73.152, 37.5),
    (20.828, 63.5, 37.5),
    (-20.828, 63.5, 37.5),
]))
fillet.setExpression("Radius", "Params.fillet_radius")
doc.recompute()

fillet2 = body.newObject("PartDesign::Fillet", "Fillet001")
fillet2.Base = (fillet, edges_at(fillet, [
    (24.003, 21.273, 5.75),
    (-30.48, 47.2, 19.5),
    (-35.28, 47.2, 19.5),
    (-35.28, 51.337, 19.5),
    (-30.48, 47.2, 55.5),
    (-35.28, 47.2, 55.5),
    (-35.28, 51.337, 55.5),
    (-30.48, 11.2, 55.5),
    (-35.28, 11.2, 55.5),
    (-35.28, 15.338, 55.5),
    (-30.48, 11.2, 19.5),
    (-35.28, 11.2, 19.5),
    (-35.28, 15.338, 19.5),
    (-30.48, 52.25, 37.5),
    (-20.828, 52.25, 37.5),
    (20.828, 31.75, 42.263),
    (19.241, 31.75, 42.263),
    (19.241, 31.75, 34.071),
    (30.48, 39.053, 5.75),
    (30.48, 21.273, 5.75),
    (26.73, 27.718, 21.625),
    (30.48, 27.718, 21.625),
    (30.48, 26.924, 37.5),
    (24.13, 26.924, 37.5),
    (30.48, 34.925, 48.612),
    (33.655, 34.925, 48.612),
    (24.003, 39.053, 5.75),
]))
fillet2.setExpression("Radius", "Params.fillet2_radius")
doc.recompute()

fillet3 = body.newObject("PartDesign::Fillet", "Fillet002")
fillet3.Base = (fillet2, edges_at(fillet2, [
    (20.828, 21.485, 8.131),
    (20.828, 24.235, 8.131),
    (20.828, 25.61, 5.75),
    (20.828, 24.235, 3.369),
    (20.828, 21.485, 3.369),
    (20.828, 20.11, 5.75),
    (24.003, 21.485, 8.131),
    (22.416, 22.86, 8.925),
    (24.003, 20.11, 5.75),
    (22.416, 20.11, 7.338),
    (24.003, 21.485, 3.369),
    (22.416, 20.11, 4.162),
    (24.003, 24.235, 3.369),
    (22.416, 22.86, 2.575),
    (24.003, 25.61, 5.75),
    (22.416, 25.61, 4.162),
    (24.003, 24.235, 8.131),
    (22.416, 25.61, 7.338),
    (-20.828, 48.375, 53.119),
    (-20.828, 51.125, 53.119),
    (-20.828, 52.5, 55.5),
    (-20.828, 51.125, 57.881),
    (-20.828, 48.375, 57.881),
    (-20.828, 47, 55.5),
    (-24.003, 48.375, 53.119),
    (-22.416, 49.75, 52.325),
    (-24.003, 47, 55.5),
    (-22.416, 47, 53.913),
    (-24.003, 48.375, 57.881),
    (-22.416, 47, 57.087),
    (-24.003, 51.125, 57.881),
    (-22.416, 49.75, 58.675),
    (-24.003, 52.5, 55.5),
    (-22.416, 52.5, 57.087),
    (-24.003, 51.125, 53.119),
    (-22.416, 52.5, 53.913),
    (-24.003, 51.337, 55.5),
    (-20.828, 12.375, 53.119),
    (-20.828, 15.125, 53.119),
    (-20.828, 16.5, 55.5),
    (-20.828, 15.125, 57.881),
    (-20.828, 12.375, 57.881),
    (-20.828, 11, 55.5),
    (-24.003, 12.375, 53.119),
    (-22.416, 13.75, 52.325),
    (-24.003, 11, 55.5),
    (-22.416, 11, 53.913),
    (-24.003, 12.375, 57.881),
    (-22.416, 11, 57.087),
    (-24.003, 15.125, 57.881),
    (-22.416, 13.75, 58.675),
    (-24.003, 16.5, 55.5),
    (-22.416, 16.5, 57.087),
    (-24.003, 15.125, 53.119),
    (-22.416, 16.5, 53.913),
    (-24.003, 15.338, 55.5),
    (-20.828, 12.375, 17.119),
    (-20.828, 15.125, 17.119),
    (-20.828, 16.5, 19.5),
    (-20.828, 15.125, 21.881),
    (-20.828, 12.375, 21.881),
    (-20.828, 11, 19.5),
    (-24.003, 12.375, 17.119),
    (-22.416, 13.75, 16.325),
    (-24.003, 11, 19.5),
    (-22.416, 11, 17.913),
    (-24.003, 12.375, 21.881),
    (-22.416, 11, 21.087),
    (-24.003, 15.125, 21.881),
    (-22.416, 13.75, 22.675),
    (-24.003, 16.5, 19.5),
    (-22.416, 16.5, 21.087),
    (-24.003, 15.125, 17.119),
    (-22.416, 16.5, 17.913),
    (-24.003, 15.338, 19.5),
    (-20.828, 48.375, 17.119),
    (-20.828, 51.125, 17.119),
    (-20.828, 52.5, 19.5),
    (-20.828, 51.125, 21.881),
    (-20.828, 48.375, 21.881),
    (-20.828, 47, 19.5),
    (-24.003, 48.375, 17.119),
    (-22.416, 49.75, 16.325),
    (-24.003, 47, 19.5),
    (-22.416, 47, 17.913),
    (-24.003, 48.375, 21.881),
    (-22.416, 47, 21.087),
    (-24.003, 51.125, 21.881),
    (-22.416, 49.75, 22.675),
    (-24.003, 52.5, 19.5),
    (-22.416, 52.5, 21.087),
    (-24.003, 51.125, 17.119),
    (-22.416, 52.5, 17.913),
    (-24.003, 51.337, 19.5),
    (20.828, 39.265, 8.131),
    (20.828, 42.015, 8.131),
    (20.828, 43.39, 5.75),
    (20.828, 42.015, 3.369),
    (20.828, 39.265, 3.369),
    (20.828, 37.89, 5.75),
    (24.003, 39.265, 8.131),
    (22.416, 40.64, 8.925),
    (24.003, 37.89, 5.75),
    (22.416, 37.89, 7.338),
    (24.003, 39.265, 3.369),
    (22.416, 37.89, 4.162),
    (24.003, 42.015, 3.369),
    (22.416, 40.64, 2.575),
    (24.003, 43.39, 5.75),
    (22.416, 43.39, 4.162),
    (24.003, 42.015, 8.131),
    (22.416, 43.39, 7.338),
]))
fillet3.setExpression("Radius", "Params.fillet3_radius")

doc.recompute()
